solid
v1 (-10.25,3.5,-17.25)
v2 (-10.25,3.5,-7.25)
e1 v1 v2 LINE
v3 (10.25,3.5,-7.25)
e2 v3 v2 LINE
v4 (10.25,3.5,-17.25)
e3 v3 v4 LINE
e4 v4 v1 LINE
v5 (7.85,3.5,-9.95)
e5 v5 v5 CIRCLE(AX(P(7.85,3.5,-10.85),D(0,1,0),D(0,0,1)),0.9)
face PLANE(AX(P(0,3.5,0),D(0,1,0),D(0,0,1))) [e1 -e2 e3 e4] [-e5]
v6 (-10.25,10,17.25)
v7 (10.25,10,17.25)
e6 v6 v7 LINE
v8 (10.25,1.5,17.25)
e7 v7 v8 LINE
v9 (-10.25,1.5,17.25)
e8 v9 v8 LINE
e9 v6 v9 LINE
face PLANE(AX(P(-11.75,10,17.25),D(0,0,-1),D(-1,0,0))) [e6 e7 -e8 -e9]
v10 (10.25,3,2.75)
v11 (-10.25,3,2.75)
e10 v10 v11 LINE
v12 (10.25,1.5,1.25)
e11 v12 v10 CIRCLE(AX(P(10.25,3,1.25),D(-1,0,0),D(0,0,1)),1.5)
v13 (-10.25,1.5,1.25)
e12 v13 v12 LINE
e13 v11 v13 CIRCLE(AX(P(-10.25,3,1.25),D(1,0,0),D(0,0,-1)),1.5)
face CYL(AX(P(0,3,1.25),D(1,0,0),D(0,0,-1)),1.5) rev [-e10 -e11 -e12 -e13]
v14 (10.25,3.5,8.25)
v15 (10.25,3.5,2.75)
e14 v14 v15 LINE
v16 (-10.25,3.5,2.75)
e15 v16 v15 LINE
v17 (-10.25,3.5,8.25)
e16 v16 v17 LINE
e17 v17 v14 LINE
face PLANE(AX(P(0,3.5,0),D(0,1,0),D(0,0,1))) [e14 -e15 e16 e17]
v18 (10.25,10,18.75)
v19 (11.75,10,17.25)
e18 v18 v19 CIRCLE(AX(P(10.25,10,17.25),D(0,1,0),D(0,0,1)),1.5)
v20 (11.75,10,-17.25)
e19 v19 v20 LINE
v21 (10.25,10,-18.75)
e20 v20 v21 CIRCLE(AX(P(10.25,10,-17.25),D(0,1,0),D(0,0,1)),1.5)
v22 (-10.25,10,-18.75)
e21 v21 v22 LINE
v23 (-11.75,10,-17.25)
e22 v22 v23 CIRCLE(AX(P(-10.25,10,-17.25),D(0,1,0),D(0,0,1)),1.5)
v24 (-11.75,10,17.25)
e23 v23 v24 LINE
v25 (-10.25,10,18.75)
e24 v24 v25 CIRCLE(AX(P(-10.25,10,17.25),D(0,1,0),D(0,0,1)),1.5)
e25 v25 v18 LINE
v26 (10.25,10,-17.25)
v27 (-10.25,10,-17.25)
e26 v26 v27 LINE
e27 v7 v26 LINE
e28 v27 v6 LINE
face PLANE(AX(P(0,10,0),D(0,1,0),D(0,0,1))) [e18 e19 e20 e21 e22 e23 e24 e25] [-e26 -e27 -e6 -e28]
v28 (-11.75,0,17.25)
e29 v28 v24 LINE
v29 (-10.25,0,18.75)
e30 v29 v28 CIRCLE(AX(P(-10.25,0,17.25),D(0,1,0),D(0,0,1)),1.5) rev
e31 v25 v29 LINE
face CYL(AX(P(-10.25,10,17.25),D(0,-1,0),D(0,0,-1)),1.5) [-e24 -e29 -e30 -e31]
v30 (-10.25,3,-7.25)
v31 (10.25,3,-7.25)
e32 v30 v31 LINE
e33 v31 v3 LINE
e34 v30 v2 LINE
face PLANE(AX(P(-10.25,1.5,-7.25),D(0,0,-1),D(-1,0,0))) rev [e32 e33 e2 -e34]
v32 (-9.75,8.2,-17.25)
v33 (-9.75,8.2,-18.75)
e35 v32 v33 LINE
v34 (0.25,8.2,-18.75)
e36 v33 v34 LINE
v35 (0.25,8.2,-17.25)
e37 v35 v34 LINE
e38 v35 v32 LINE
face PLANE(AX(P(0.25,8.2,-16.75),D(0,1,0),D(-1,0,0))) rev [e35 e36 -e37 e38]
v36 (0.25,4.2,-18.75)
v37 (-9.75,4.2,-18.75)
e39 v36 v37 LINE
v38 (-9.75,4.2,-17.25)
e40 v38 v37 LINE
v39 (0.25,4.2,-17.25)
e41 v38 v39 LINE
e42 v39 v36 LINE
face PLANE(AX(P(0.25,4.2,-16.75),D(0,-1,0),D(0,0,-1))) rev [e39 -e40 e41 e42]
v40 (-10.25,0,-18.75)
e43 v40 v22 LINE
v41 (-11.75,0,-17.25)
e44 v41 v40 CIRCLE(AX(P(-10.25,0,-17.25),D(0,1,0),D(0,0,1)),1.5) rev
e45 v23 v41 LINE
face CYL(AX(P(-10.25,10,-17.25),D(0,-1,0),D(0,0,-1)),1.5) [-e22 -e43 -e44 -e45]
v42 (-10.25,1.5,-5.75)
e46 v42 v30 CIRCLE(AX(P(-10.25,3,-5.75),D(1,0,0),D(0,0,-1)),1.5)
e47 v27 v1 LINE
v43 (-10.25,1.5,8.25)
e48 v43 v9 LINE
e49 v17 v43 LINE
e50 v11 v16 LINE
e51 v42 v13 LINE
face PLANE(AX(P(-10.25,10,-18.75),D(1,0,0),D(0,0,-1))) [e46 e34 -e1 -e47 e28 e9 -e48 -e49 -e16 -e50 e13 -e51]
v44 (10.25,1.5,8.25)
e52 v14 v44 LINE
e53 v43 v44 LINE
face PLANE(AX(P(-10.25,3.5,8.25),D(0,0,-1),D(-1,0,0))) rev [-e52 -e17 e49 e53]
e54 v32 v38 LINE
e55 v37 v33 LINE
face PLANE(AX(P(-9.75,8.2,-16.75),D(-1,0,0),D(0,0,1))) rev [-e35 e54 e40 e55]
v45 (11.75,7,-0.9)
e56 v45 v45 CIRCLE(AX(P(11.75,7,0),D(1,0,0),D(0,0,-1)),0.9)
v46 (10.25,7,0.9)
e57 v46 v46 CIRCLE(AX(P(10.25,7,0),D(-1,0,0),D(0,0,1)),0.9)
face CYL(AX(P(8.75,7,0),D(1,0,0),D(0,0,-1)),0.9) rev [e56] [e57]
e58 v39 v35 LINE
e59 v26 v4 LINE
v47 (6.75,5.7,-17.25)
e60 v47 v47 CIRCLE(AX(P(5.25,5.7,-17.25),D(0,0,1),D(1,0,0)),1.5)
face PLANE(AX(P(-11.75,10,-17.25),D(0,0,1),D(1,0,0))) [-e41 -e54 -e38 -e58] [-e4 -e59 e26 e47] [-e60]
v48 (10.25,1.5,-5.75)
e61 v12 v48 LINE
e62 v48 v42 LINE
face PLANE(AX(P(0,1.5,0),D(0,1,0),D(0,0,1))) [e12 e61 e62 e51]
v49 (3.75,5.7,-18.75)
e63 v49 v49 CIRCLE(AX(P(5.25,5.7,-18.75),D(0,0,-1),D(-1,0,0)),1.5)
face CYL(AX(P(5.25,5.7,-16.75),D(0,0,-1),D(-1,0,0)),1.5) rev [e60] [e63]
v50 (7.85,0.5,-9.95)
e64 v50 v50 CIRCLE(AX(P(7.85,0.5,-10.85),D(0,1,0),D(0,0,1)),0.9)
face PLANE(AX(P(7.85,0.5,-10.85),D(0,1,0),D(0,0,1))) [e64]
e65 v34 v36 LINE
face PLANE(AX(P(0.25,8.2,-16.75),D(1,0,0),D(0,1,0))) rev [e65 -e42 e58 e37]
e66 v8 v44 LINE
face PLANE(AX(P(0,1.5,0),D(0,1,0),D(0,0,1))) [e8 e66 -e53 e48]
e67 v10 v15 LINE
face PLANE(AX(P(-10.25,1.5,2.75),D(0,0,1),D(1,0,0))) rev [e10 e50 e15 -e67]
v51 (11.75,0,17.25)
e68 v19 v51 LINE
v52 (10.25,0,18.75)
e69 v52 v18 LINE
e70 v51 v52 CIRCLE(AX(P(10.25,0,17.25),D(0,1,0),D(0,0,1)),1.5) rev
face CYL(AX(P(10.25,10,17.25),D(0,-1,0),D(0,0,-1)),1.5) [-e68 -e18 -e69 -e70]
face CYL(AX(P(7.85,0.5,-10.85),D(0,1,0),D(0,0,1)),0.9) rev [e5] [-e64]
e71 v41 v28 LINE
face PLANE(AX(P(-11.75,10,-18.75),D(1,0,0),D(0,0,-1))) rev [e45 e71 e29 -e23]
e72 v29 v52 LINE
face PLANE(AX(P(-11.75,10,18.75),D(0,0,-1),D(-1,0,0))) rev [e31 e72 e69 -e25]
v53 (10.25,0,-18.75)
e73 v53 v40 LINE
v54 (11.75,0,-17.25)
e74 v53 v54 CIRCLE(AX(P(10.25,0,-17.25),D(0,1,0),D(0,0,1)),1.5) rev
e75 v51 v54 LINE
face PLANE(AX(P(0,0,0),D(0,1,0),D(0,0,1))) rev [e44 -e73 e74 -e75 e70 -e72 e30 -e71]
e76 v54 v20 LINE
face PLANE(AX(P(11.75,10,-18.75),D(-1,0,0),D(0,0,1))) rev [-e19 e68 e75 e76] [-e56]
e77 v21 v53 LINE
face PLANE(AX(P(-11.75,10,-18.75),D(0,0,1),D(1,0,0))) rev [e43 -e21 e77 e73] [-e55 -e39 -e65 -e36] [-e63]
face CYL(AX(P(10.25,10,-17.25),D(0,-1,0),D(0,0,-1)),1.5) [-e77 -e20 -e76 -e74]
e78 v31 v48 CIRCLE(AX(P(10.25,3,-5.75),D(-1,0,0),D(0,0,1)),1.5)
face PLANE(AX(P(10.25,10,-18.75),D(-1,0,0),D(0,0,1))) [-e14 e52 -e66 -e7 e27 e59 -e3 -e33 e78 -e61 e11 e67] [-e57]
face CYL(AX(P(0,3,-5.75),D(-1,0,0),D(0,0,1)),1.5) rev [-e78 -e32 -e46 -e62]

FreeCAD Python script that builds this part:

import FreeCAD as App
import Part
import Sketcher
from FreeCAD import Vector


def edges_at(feature, points):
    """Names of the edges that pass closest to the given points."""
    edges = feature.Shape.Edges
    near = lambda p: min(range(len(edges)), key=lambda i: edges[i].distToShape(Part.Vertex(*p))[0])
    return sorted({f"Edge{near(p) + 1}" for p in points})


def faces_at(feature, points):
    """Names of the faces that lie closest to the given points."""
    faces = feature.Shape.Faces
    near = lambda p: min(range(len(faces)), key=lambda i: faces[i].distToShape(Part.Vertex(*p))[0])
    return sorted({f"Face{near(p) + 1}" for p in points})

doc = App.newDocument("Part")
body = doc.addObject("PartDesign::Body", "Body")

# Sketch on XZ plane
sketch1 = body.newObject("Sketcher::SketchObject", "Sketch")
sketch1.AttachmentSupport = (doc.getObject("XZ_Plane"), [""])
sketch1.MapMode = "FlatFace"
sketch1.addGeometry([
    Part.LineSegment(Vector(-11.75, -18.75, 0), Vector(-11.75, 18.75, 0)),
    Part.LineSegment(Vector(-11.75, 18.75, 0), Vector(11.75, 18.75, 0)),
    Part.LineSegment(Vector(11.75, 18.75, 0), Vector(11.75, -18.75, 0)),
    Part.LineSegment(Vector(11.75, -18.75, 0), Vector(-11.75, -18.75, 0)),
], False)
sketch1.addConstraint([
    Sketcher.Constraint("Coincident", 0, 2, 1, 1),
    Sketcher.Constraint("Coincident", 1, 2, 2, 1),
    Sketcher.Constraint("Coincident", 2, 2, 3, 1),
    Sketcher.Constraint("Coincident", 3, 2, 0, 1),
    Sketcher.Constraint("Vertical", 0),
    Sketcher.Constraint("Horizontal", 1),
    Sketcher.Constraint("Vertical", 2),
    Sketcher.Constraint("Horizontal", 3),
    Sketcher.Constraint("Symmetric", 0, 2, 2, 2, -1, 1),
    Sketcher.Constraint("DistanceX", 1, 1, 1, 2, 23.5),
    Sketcher.Constraint("DistanceY", 0, 1, 0, 2, 37.5),
])
pad1 = body.newObject("PartDesign::Pad", "Pad")
pad1.Profile = sketch1
pad1.Length = 10
pad1.Reversed = True
doc.recompute()

thickness = body.newObject("PartDesign::Thickness", "Thickness")
thickness.Base = (pad1, faces_at(pad1, [(0, 10, 0)]))
thickness.Value = 1.5
thickness.Reversed = True
thickness.Join = "Intersection"
doc.recompute()

fillet = body.newObject("PartDesign::Fillet", "Fillet")
fillet.Base = (thickness, edges_at(thickness, [
    (-11.75, 5, -18.75),
    (11.75, 5, -18.75),
    (11.75, 5, 18.75),
    (-11.75, 5, 18.75),
]))
fillet.Radius = 1.5

# Sketch on XZ plane
sketch2 = body.newObject("Sketcher::SketchObject", "Sketch001")
sketch2.AttachmentSupport = (doc.getObject("XZ_Plane"), [""])
sketch2.MapMode = "FlatFace"
sketch2.AttachmentOffset = App.Placement(Vector(0, 0, -1.5), App.Rotation())
sketch2.addGeometry([
    Part.LineSegment(Vector(-10.25, -17.25, 0), Vector(-10.25, 8.25, 0)),
    Part.LineSegment(Vector(-10.25, 8.25, 0), Vector(10.25, 8.25, 0)),
    Part.LineSegment(Vector(10.25, 8.25, 0), Vector(10.25, -17.25, 0)),
    Part.LineSegment(Vector(10.25, -17.25, 0), Vector(-10.25, -17.25, 0)),
], False)
sketch2.addConstraint([
    Sketcher.Constraint("Coincident", 0, 2, 1, 1),
    Sketcher.Constraint("Coincident", 1, 2, 2, 1),
    Sketcher.Constraint("Coincident", 2, 2, 3, 1),
    Sketcher.Constraint("Coincident", 3, 2, 0, 1),
    Sketcher.Constraint("Vertical", 0),
    Sketcher.Constraint("Horizontal", 1),
    Sketcher.Constraint("Vertical", 2),
    Sketcher.Constraint("Horizontal", 3),
    Sketcher.Constraint("DistanceX", 1, 1, 1, 2, 20.5),
    Sketcher.Constraint("DistanceY", 0, 1, 0, 2, 25.5),
    Sketcher.Constraint("DistanceX", 0, 2, -1, 1, 10.25),
    Sketcher.Constraint("DistanceY", -1, 1, 0, 2, 8.25),
])
pad2 = body.newObject("PartDesign::Pad", "Pad001")
pad2.Profile = sketch2
pad2.Length = 2
pad2.Reversed = True

# Sketch on XZ plane
sketch3 = body.newObject("Sketcher::SketchObject", "Sketch002")
sketch3.AttachmentSupport = (doc.getObject("XZ_Plane"), [""])
sketch3.MapMode = "FlatFace"
sketch3.AttachmentOffset = App.Placement(Vector(0, 0, -3.5), App.Rotation())
sketch3.addGeometry([
    Part.LineSegment(Vector(-10.25, -7.25, 0), Vector(-10.25, 2.75, 0)),
    Part.LineSegment(Vector(-10.25, 2.75, 0), Vector(10.25, 2.75, 0)),
    Part.LineSegment(Vector(10.25, 2.75, 0), Vector(10.25, -7.25, 0)),
    Part.LineSegment(Vector(10.25, -7.25, 0), Vector(-10.25, -7.25, 0)),
], False)
sketch3.addConstraint([
    Sketcher.Constraint("Coincident", 0, 2, 1, 1),
    Sketcher.Constraint("Coincident", 1, 2, 2, 1),
    Sketcher.Constraint("Coincident", 2, 2, 3, 1),
    Sketcher.Constraint("Coincident", 3, 2, 0, 1),
    Sketcher.Constraint("Vertical", 0),
    Sketcher.Constraint("Horizontal", 1),
    Sketcher.Constraint("Vertical", 2),
    Sketcher.Constraint("Horizontal", 3),
    Sketcher.Constraint("DistanceY", 0, 1, 0, 2, 10.0),
    Sketcher.Constraint("DistanceX", 1, 1, 1, 2, 20.5),
    Sketcher.Constraint("DistanceX", 0, 2, -1, 1, 10.25),
    Sketcher.Constraint("DistanceY", -1, 1, 0, 2, 2.75),
])
pocket1 = body.newObject("PartDesign::Pocket", "Pocket")
pocket1.Profile = sketch3
pocket1.Length = 2
pocket1.Reversed = True
doc.recompute()

fillet2 = body.newObject("PartDesign::Fillet", "Fillet001")
fillet2.Base = (pocket1, edges_at(pocket1, [(0, 1.5, -7.25), (0, 1.5, 2.75)]))
fillet2.Radius = 1.5

# Sketch on XY plane
sketch4 = body.newObject("Sketcher::SketchObject", "Sketch003")
sketch4.AttachmentSupport = (doc.getObject("XY_Plane"), [""])
sketch4.MapMode = "FlatFace"
sketch4.AttachmentOffset = App.Placement(Vector(0, 0, -18.75), App.Rotation())
sketch4.addGeometry([
    Part.LineSegment(Vector(0.25, 8.2, 0), Vector(0.25, 4.2, 0)),
    Part.LineSegment(Vector(0.25, 4.2, 0), Vector(-9.75, 4.2, 0)),
    Part.LineSegment(Vector(-9.75, 4.2, 0), Vector(-9.75, 8.2, 0)),
    Part.LineSegment(Vector(-9.75, 8.2, 0), Vector(0.25, 8.2, 0)),
], False)
sketch4.addConstraint([
    Sketcher.Constraint("Coincident", 0, 2, 1, 1),
    Sketcher.Constraint("Coincident", 1, 2, 2, 1),
    Sketcher.Constraint("Coincident", 2, 2, 3, 1),
    Sketcher.Constraint("Coincident", 3, 2, 0, 1),
    Sketcher.Constraint("Vertical", 0),
    Sketcher.Constraint("Horizontal", 1),
    Sketcher.Constraint("Vertical", 2),
    Sketcher.Constraint("Horizontal", 3),
    Sketcher.Constraint("DistanceX", 1, 2, 1, 1, 10.0),
    Sketcher.Constraint("DistanceY", 0, 2, 0, 1, 4.0),
    Sketcher.Constraint("DistanceY", -1, 1, 0, 2, 4.2),
    Sketcher.Constraint("DistanceX", -1, 1, 0, 2, 0.25),
])
pocket2 = body.newObject("PartDesign::Pocket", "Pocket001")
pocket2.Profile = sketch4
pocket2.Length = 2
pocket2.Reversed = True

# Sketch on XY plane
sketch5 = body.newObject("Sketcher::SketchObject", "Sketch004")
sketch5.AttachmentSupport = (doc.getObject("XY_Plane"), [""])
sketch5.MapMode = "FlatFace"
sketch5.AttachmentOffset = App.Placement(Vector(0, 0, -18.75), App.Rotation())
sketch5.addGeometry(Part.Circle(Vector(5.25, 5.7, 0), Vector(0, 0, 1), 1.5), False)
sketch5.addConstraint([
    Sketcher.Constraint("Diameter", 0, 3.0),
    Sketcher.Constraint("DistanceY", -1, 1, 0, 3, 5.7),
    Sketcher.Constraint("DistanceX", -1, 1, 0, 3, 5.25),
])
pocket3 = body.newObject("PartDesign::Pocket", "Pocket002")
pocket3.Profile = sketch5
pocket3.Length = 2
pocket3.Reversed = True

# Sketch on XZ plane
sketch6 = body.newObject("Sketcher::SketchObject", "Sketch005")
sketch6.AttachmentSupport = (doc.getObject("XZ_Plane"), [""])
sketch6.MapMode = "FlatFace"
sketch6.AttachmentOffset = App.Placement(Vector(0, 0, -3.5), App.Rotation())
sketch6.addGeometry(Part.Circle(Vector(7.85, -10.85, 0), Vector(0, 0, 1), 0.9), False)
sketch6.addConstraint([
    Sketcher.Constraint("Diameter", 0, 1.8),
    Sketcher.Constraint("DistanceX", -1, 1, 0, 3, 7.85),
    Sketcher.Constraint("DistanceY", 0, 3, -1, 1, 10.85),
])
pocket4 = body.newObject("PartDesign::Pocket", "Pocket003")
pocket4.Profile = sketch6
pocket4.Length = 3
pocket4.Reversed = True

# Sketch on YZ plane
sketch7 = body.newObject("Sketcher::SketchObject", "Sketch006")
sketch7.AttachmentSupport = (doc.getObject("YZ_Plane"), [""])
sketch7.MapMode = "FlatFace"
sketch7.AttachmentOffset = App.Placement(Vector(0, 0, 11.75), App.Rotation())
sketch7.addGeometry(Part.Circle(Vector(7, 0, 0), Vector(0, 0, 1), 0.9), False)
sketch7.addConstraint([
    Sketcher.Constraint("PointOnObject", 0, 3, -1),
    Sketcher.Constraint("Diameter", 0, 1.8),
    Sketcher.Constraint("DistanceX", -1, 1, 0, 3, 7.0),
])
pocket5 = body.newObject("PartDesign::Pocket", "Pocket004")
pocket5.Profile = sketch7
pocket5.Length = 3

doc.recompute()
